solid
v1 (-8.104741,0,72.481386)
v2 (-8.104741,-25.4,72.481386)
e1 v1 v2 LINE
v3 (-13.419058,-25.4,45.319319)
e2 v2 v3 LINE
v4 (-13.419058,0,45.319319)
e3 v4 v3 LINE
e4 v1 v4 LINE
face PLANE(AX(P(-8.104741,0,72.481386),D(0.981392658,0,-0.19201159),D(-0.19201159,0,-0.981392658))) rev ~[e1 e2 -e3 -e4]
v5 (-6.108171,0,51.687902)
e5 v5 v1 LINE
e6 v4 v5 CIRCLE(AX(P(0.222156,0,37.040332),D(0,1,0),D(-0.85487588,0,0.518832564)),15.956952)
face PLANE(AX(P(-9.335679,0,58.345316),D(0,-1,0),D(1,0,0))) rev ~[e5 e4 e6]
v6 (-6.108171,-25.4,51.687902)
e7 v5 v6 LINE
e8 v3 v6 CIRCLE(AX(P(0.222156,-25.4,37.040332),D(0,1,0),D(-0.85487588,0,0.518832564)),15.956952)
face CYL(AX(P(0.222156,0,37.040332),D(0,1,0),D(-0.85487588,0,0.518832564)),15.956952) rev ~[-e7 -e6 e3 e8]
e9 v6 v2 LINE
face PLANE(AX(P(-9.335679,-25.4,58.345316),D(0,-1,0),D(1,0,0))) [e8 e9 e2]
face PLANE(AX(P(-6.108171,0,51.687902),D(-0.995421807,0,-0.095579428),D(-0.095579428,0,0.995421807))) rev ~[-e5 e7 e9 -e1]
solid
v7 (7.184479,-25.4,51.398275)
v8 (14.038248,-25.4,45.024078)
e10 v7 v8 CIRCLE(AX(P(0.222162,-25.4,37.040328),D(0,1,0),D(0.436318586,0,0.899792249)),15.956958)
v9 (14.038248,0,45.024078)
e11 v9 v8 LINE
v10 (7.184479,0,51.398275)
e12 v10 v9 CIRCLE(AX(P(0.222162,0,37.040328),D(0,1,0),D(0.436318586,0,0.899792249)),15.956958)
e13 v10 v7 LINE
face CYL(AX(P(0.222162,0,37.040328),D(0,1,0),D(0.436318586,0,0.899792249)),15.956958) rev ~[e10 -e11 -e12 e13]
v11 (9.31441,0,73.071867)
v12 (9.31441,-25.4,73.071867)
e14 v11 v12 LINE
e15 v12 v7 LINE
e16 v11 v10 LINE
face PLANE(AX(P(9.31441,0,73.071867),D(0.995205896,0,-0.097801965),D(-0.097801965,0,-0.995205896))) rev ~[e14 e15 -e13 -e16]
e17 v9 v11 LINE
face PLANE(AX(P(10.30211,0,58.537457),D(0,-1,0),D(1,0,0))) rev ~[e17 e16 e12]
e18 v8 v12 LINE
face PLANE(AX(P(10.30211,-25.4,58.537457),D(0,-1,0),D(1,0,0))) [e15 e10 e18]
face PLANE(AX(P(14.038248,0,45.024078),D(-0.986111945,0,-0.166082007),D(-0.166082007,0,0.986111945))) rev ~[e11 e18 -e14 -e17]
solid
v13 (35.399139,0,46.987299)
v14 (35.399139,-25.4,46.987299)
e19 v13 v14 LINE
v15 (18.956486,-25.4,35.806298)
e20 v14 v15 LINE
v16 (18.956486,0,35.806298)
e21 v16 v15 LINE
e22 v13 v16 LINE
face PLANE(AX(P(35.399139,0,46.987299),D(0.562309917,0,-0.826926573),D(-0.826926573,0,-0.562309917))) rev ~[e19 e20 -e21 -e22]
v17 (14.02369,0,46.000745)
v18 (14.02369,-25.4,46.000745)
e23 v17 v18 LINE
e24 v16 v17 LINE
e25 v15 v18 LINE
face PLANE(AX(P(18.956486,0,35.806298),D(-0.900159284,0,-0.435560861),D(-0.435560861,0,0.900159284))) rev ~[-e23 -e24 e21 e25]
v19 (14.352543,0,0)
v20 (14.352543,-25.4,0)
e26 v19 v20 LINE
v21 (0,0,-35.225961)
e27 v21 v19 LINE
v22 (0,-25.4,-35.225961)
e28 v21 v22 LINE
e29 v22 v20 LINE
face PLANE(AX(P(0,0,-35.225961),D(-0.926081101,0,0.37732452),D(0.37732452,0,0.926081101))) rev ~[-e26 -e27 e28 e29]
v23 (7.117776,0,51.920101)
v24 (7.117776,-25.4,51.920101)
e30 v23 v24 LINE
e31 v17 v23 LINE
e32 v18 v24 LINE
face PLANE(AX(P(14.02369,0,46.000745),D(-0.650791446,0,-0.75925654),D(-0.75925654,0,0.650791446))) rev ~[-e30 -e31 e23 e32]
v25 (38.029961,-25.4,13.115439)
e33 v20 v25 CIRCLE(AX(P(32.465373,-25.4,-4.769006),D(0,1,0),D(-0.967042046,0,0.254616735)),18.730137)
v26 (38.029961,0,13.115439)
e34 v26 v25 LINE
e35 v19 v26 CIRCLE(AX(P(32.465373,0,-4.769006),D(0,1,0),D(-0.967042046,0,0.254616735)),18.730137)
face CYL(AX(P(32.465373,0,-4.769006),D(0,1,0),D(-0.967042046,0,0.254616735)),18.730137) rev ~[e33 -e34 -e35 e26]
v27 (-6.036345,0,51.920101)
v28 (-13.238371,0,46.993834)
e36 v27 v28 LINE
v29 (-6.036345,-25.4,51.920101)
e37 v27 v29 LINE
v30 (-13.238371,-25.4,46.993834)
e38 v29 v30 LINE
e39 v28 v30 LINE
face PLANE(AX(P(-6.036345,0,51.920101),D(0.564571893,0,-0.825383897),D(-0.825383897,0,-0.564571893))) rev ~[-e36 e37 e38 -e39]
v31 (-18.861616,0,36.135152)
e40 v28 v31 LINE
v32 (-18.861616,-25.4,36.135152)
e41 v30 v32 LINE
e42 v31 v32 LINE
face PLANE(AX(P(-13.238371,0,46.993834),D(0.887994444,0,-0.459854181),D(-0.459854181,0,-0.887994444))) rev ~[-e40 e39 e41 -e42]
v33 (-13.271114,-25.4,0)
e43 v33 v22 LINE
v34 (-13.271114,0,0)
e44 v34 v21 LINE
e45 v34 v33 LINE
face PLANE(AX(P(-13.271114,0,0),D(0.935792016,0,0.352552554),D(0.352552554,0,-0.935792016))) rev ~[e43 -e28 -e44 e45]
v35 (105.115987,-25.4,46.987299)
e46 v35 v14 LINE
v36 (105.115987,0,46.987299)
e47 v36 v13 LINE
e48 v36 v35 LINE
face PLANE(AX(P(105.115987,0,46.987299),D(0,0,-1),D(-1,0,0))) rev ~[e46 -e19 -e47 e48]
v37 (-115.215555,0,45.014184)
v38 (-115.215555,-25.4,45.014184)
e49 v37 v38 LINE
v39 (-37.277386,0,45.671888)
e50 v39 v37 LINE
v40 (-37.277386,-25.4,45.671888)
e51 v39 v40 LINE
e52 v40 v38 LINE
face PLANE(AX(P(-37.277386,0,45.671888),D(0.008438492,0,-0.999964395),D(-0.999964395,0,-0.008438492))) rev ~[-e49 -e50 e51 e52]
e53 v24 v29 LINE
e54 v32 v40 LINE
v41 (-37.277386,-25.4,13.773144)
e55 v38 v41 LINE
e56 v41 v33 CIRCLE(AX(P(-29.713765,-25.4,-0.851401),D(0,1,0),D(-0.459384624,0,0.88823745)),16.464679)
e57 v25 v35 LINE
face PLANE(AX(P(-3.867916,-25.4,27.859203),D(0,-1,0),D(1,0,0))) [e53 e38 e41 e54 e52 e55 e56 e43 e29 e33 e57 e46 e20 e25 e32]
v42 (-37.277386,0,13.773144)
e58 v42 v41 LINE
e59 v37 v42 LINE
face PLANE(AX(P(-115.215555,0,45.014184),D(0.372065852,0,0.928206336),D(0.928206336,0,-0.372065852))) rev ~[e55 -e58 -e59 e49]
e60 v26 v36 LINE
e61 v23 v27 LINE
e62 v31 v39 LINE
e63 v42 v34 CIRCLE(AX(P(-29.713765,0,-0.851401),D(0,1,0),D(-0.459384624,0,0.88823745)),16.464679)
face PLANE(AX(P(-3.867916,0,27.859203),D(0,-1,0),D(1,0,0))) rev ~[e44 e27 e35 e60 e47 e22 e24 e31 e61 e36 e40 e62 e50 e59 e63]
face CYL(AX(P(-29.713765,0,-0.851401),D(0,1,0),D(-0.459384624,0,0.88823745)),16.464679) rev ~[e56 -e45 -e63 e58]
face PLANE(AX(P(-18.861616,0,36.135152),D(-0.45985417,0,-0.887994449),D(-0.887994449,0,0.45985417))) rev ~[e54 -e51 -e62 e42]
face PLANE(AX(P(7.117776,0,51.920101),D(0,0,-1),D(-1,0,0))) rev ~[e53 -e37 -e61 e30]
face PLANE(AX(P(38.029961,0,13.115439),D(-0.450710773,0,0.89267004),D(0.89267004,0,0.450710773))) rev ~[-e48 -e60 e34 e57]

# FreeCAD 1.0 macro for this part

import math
import FreeCAD as App
import Part
import Sketcher

V = App.Vector
Q = App.Units.Quantity

doc = App.newDocument("Part")
body = doc.addObject("PartDesign::Body", "Body")
body.AllowCompound = True

# Sketch on XZ plane
sketch1 = body.newObject("Sketcher::SketchObject", "Sketch")
sketch1.AttachmentSupport = (doc.getObject("XZ_Plane"), [""])
sketch1.MapMode = "FlatFace"
sketch1.addGeometry(Part.ArcOfCircle(Part.Circle(V(0, 37, 0), V(0, 0, 1), 16), math.radians(30), math.radians(64)), False)
sketch1.addGeometry(Part.LineSegment(V(14, 45, 0), V(9, 73, 0)), False)
sketch1.addGeometry(Part.LineSegment(V(9, 73, 0), V(7, 51, 0)), False)
sketch1.addGeometry(Part.ArcOfCircle(Part.Circle(V(0, 37, 0), V(0, 0, 1), 16), math.radians(113), math.radians(149)), False)
sketch1.addGeometry(Part.LineSegment(V(-6, 52, 0), V(-8, 72, 0)), False)
sketch1.addGeometry(Part.LineSegment(V(-8, 72, 0), V(-13, 45, 0)), False)
sketch1.addConstraint(Sketcher.Constraint("Coincident", 0, 1, 1, 1))
sketch1.addConstraint(Sketcher.Constraint("Coincident", 1, 2, 2, 1))
sketch1.addConstraint(Sketcher.Constraint("Coincident", 2, 2, 0, 2))
sketch1.addConstraint(Sketcher.Constraint("Coincident", 3, 1, 4, 1))
sketch1.addConstraint(Sketcher.Constraint("Coincident", 4, 2, 5, 1))
sketch1.addConstraint(Sketcher.Constraint("Coincident", 5, 2, 3, 2))
sketch1.addConstraint(Sketcher.Constraint("Coincident", 3, 3, 0, 3))
sketch1.addConstraint(Sketcher.Constraint("Radius", 0, Q("15.956958 mm")))
sketch1.addConstraint(Sketcher.Constraint("Radius", 3, Q("15.956952 mm")))
sketch1.addConstraint(Sketcher.Constraint("DistanceY", -1, 1, 3, 1, Q("51.687902 mm")))
sketch1.addConstraint(Sketcher.Constraint("Distance", 4, Q("20.889118 mm")))
sketch1.addConstraint(Sketcher.Constraint("DistanceX", -1, 1, 0, 3, Q("0.222162 mm")))
sketch1.addConstraint(Sketcher.Constraint("DistanceX", -1, 1, 1, 2, Q("9.31441 mm")))
sketch1.addConstraint(Sketcher.Constraint("DistanceX", -1, 1, 2, 2, Q("7.184479 mm")))
sketch1.addConstraint(Sketcher.Constraint("DistanceX", 3, 1, -1, 1, Q("6.108171 mm")))
sketch1.addConstraint(Sketcher.Constraint("DistanceX", 4, 2, -1, 1, Q("8.104741 mm")))
sketch1.addConstraint(Sketcher.Constraint("DistanceY", -1, 1, 5, 2, Q("45.319319 mm")))
sketch1.addConstraint(Sketcher.Constraint("DistanceY", 0, 3, 0, 1, Q("7.98375 mm")))
sketch1.addConstraint(Sketcher.Constraint("DistanceY", 0, 1, 1, 2, Q("28.047789 mm")))
pad1 = body.newObject("PartDesign::Pad", "Pad")
pad1.Profile = sketch1
pad1.Length = Q("1 in")
body2 = doc.addObject("PartDesign::Body", "Body001")

# Sketch on XZ plane
sketch2 = body2.newObject("Sketcher::SketchObject", "Sketch001")
sketch2.AttachmentSupport = (doc.getObject("XZ_Plane001"), [""])
sketch2.MapMode = "FlatFace"
sketch2.addGeometry(Part.LineSegment(V(-19, 36, 0), V(-37, 46, 0)), False)
sketch2.addGeometry(Part.LineSegment(V(-37, 46, 0), V(-115, 45, 0)), False)
sketch2.addGeometry(Part.LineSegment(V(-115, 45, 0), V(-37, 14, 0)), False)
sketch2.addGeometry(Part.ArcOfCircle(Part.Circle(V(-30, -1, 0), V(0, 0, 1), 16), math.radians(3), math.radians(117)), False)
sketch2.addGeometry(Part.LineSegment(V(-13, 0, 0), V(0, -35, 0)), False)
sketch2.addGeometry(Part.LineSegment(V(0, -35, 0), V(14, 0, 0)), False)
sketch2.addGeometry(Part.ArcOfCircle(Part.Circle(V(32, -5, 0), V(0, 0, 1), 19), math.radians(73), math.radians(165)), False)
sketch2.addGeometry(Part.LineSegment(V(38, 13, 0), V(105, 47, 0)), False)
sketch2.addGeometry(Part.LineSegment(V(105, 47, 0), V(35, 47, 0)), False)
sketch2.addGeometry(Part.LineSegment(V(35, 47, 0), V(19, 36, 0)), False)
sketch2.addGeometry(Part.LineSegment(V(19, 36, 0), V(14, 46, 0)), False)
sketch2.addGeometry(Part.LineSegment(V(14, 46, 0), V(7, 52, 0)), False)
sketch2.addGeometry(Part.LineSegment(V(7, 52, 0), V(-6, 52, 0)), False)
sketch2.addGeometry(Part.LineSegment(V(-6, 52, 0), V(-13, 47, 0)), False)
sketch2.addGeometry(Part.LineSegment(V(-13, 47, 0), V(-19, 36, 0)), False)
sketch2.addConstraint(Sketcher.Constraint("Coincident", 0, 2, 1, 1))
sketch2.addConstraint(Sketcher.Constraint("Coincident", 1, 2, 2, 1))
sketch2.addConstraint(Sketcher.Constraint("Coincident", 2, 2, 3, 2))
sketch2.addConstraint(Sketcher.Constraint("Coincident", 3, 1, 4, 1))
sketch2.addConstraint(Sketcher.Constraint("Coincident", 4, 2, 5, 1))
sketch2.addConstraint(Sketcher.Constraint("Coincident", 5, 2, 6, 2))
sketch2.addConstraint(Sketcher.Constraint("Coincident", 6, 1, 7, 1))
sketch2.addConstraint(Sketcher.Constraint("Coincident", 7, 2, 8, 1))
sketch2.addConstraint(Sketcher.Constraint("Coincident", 8, 2, 9, 1))
sketch2.addConstraint(Sketcher.Constraint("Coincident", 9, 2, 10, 1))
sketch2.addConstraint(Sketcher.Constraint("Coincident", 10, 2, 11, 1))
sketch2.addConstraint(Sketcher.Constraint("Coincident", 11, 2, 12, 1))
sketch2.addConstraint(Sketcher.Constraint("Coincident", 12, 2, 13, 1))
sketch2.addConstraint(Sketcher.Constraint("Coincident", 13, 2, 14, 1))
sketch2.addConstraint(Sketcher.Constraint("Coincident", 14, 2, 0, 1))
sketch2.addConstraint(Sketcher.Constraint("Horizontal", 8))
sketch2.addConstraint(Sketcher.Constraint("Horizontal", 12))
sketch2.addConstraint(Sketcher.Constraint("PointOnObject", 3, 1, -1))
sketch2.addConstraint(Sketcher.Constraint("PointOnObject", 4, 2, -2))
sketch2.addConstraint(Sketcher.Constraint("PointOnObject", 5, 2, -1))
sketch2.addConstraint(Sketcher.Constraint("Perpendicular", 0, 14))
sketch2.addConstraint(Sketcher.Constraint("Vertical", 0, 2, 2, 2))
sketch2.addConstraint(Sketcher.Constraint("Radius", 3, Q("16.464679 mm")))
sketch2.addConstraint(Sketcher.Constraint("Radius", 6, Q("18.730137 mm")))
sketch2.addConstraint(Sketcher.Constraint("DistanceX", 8, 2, 8, 1, Q("69.716848 mm")))
sketch2.addConstraint(Sketcher.Constraint("DistanceX", 12, 2, 12, 1, Q("13.154121 mm")))
sketch2.addConstraint(Sketcher.Constraint("DistanceY", 3, 3, -1, 1, Q("0.851401 mm")))
sketch2.addConstraint(Sketcher.Constraint("DistanceY", -1, 1, 7, 2, Q("46.987299 mm")))
sketch2.addConstraint(Sketcher.Constraint("DistanceY", -1, 1, 11, 2, Q("51.920101 mm")))
sketch2.addConstraint(Sketcher.Constraint("DistanceY", 4, 2, 6, 1, Q("48.3414 mm")))
sketch2.addConstraint(Sketcher.Constraint("DistanceX", 3, 1, 7, 2, Q("118.387101 mm")))
sketch2.addConstraint(Sketcher.Constraint("DistanceY", 9, 2, 8, 2, Q("11.181001 mm")))
sketch2.addConstraint(Sketcher.Constraint("DistanceX", 3, 1, 9, 2, Q("32.2276 mm")))
sketch2.addConstraint(Sketcher.Constraint("Distance", 0, Q("20.738609 mm")))
sketch2.addConstraint(Sketcher.Constraint("Distance", 4, Q("37.642938 mm")))
sketch2.addConstraint(Sketcher.Constraint("Distance", 10, Q("11.325159 mm")))
sketch2.addConstraint(Sketcher.Constraint("Distance", 13, Q("8.725668 mm")))
sketch2.addConstraint(Sketcher.Constraint("DistanceY", -1, 1, 0, 2, Q("45.671888 mm")))
sketch2.addConstraint(Sketcher.Constraint("DistanceY", 4, 2, -1, 1, Q("35.225961 mm")))
sketch2.addConstraint(Sketcher.Constraint("DistanceX", -1, 1, 6, 1, Q("38.029961 mm")))
sketch2.addConstraint(Sketcher.Constraint("DistanceX", -1, 1, 10, 2, Q("14.02369 mm")))
sketch2.addConstraint(Sketcher.Constraint("DistanceX", 13, 2, -1, 1, Q("13.238371 mm")))
sketch2.addConstraint(Sketcher.Constraint("DistanceY", -1, 1, 14, 2, Q("36.135152 mm")))
sketch2.addConstraint(Sketcher.Constraint("DistanceX", 3, 3, 6, 3, Q("62.179138 mm")))
sketch2.addConstraint(Sketcher.Constraint("DistanceX", 0, 2, 3, 3, Q("7.563621 mm")))
sketch2.addConstraint(Sketcher.Constraint("DistanceX", 1, 2, 0, 2, Q("77.938169 mm")))
sketch2.addConstraint(Sketcher.Constraint("DistanceY", 6, 3, 1, 2, Q("49.78319 mm")))
pad2 = body2.newObject("PartDesign::Pad", "Pad001")
pad2.Profile = sketch2
pad2.Length = Q("1 in")

doc.recompute()
